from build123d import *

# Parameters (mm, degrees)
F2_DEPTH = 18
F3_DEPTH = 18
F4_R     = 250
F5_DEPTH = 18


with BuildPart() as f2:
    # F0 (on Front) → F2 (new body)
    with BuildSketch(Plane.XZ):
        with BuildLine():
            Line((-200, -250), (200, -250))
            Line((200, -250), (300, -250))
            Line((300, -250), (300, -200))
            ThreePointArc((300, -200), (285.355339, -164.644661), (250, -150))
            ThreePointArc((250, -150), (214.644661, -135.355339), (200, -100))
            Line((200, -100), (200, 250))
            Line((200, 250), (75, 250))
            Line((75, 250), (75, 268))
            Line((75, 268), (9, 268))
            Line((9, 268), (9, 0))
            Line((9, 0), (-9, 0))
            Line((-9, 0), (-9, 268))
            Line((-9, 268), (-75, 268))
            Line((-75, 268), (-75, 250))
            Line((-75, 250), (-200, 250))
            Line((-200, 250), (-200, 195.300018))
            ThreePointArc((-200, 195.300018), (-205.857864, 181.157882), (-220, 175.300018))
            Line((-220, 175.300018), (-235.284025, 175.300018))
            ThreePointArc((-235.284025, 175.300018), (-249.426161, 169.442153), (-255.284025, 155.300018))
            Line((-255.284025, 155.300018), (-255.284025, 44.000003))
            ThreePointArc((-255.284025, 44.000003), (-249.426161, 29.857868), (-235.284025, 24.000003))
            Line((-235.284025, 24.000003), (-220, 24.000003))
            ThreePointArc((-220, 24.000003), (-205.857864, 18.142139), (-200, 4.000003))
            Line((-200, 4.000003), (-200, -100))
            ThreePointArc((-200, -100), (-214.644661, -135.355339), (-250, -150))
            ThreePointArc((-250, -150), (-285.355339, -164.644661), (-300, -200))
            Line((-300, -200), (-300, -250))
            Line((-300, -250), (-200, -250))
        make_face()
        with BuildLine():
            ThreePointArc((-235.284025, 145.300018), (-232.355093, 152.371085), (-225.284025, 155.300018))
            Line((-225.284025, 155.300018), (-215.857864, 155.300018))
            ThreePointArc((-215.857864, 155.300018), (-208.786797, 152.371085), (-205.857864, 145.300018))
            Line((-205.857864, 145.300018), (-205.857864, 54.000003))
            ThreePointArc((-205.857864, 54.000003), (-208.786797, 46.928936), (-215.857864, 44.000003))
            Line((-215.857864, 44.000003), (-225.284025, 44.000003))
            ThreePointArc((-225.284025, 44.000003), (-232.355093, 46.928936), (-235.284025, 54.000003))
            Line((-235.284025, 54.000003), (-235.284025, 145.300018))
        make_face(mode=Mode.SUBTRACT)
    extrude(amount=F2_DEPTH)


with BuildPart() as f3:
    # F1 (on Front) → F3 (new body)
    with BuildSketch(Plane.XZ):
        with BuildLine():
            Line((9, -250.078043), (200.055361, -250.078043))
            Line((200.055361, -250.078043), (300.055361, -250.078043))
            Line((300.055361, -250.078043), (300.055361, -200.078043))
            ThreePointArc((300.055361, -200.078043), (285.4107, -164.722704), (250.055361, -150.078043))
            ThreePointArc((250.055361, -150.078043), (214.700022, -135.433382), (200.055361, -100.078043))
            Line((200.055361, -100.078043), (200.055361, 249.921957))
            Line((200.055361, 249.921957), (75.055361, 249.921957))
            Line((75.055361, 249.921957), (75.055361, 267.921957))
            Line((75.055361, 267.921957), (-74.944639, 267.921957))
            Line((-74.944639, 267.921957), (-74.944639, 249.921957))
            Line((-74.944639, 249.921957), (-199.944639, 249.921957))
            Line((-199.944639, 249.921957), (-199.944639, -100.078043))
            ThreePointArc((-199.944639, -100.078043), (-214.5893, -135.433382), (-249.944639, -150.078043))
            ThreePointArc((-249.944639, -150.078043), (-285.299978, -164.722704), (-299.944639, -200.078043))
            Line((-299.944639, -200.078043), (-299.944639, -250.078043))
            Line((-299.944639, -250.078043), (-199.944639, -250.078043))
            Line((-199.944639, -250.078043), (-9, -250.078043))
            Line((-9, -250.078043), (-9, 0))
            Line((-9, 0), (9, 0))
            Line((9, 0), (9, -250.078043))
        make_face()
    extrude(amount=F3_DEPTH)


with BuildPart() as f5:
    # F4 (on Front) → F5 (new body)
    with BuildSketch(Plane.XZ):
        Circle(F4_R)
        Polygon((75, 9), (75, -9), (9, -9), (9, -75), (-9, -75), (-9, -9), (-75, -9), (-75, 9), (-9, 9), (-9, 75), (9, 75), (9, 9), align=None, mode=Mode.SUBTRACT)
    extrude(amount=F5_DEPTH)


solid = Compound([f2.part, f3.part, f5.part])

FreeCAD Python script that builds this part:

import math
import FreeCAD as App
import Part
import Sketcher
from FreeCAD import Vector

doc = App.newDocument("Part")
body = doc.addObject("PartDesign::Body", "Body")

# Sketch on XZ plane
sketch1 = body.newObject("Sketcher::SketchObject", "Sketch")
sketch1.AttachmentSupport = (doc.getObject("XZ_Plane"), [""])
sketch1.MapMode = "FlatFace"
sketch1.addGeometry(Part.LineSegment(Vector(300, -250, 0), Vector(300, -200, 0)), False)
sketch1.addGeometry(Part.ArcOfCircle(Part.Circle(Vector(250, -200, 0), Vector(0, 0, 1), 50), math.radians(0), math.radians(90)), False)
sketch1.addGeometry(Part.ArcOfCircle(Part.Circle(Vector(250, -100, 0), Vector(0, 0, 1), 50), math.radians(-180), math.radians(-90)), False)
sketch1.addGeometry(Part.LineSegment(Vector(200, -100, 0), Vector(200, 250, 0)), False)
sketch1.addGeometry(Part.LineSegment(Vector(200, 250, 0), Vector(75, 250, 0)), False)
sketch1.addGeometry(Part.LineSegment(Vector(75, 250, 0), Vector(75, 268, 0)), False)
sketch1.addGeometry(Part.LineSegment(Vector(75, 268, 0), Vector(9, 268, 0)), False)
sketch1.addGeometry(Part.LineSegment(Vector(9, 268, 0), Vector(9, 0, 0)), False)
sketch1.addGeometry(Part.LineSegment(Vector(9, 0, 0), Vector(-9, 0, 0)), False)
sketch1.addGeometry(Part.LineSegment(Vector(-9, 0, 0), Vector(-9, 268, 0)), False)
sketch1.addGeometry(Part.LineSegment(Vector(-9, 268, 0), Vector(-75, 268, 0)), False)
sketch1.addGeometry(Part.LineSegment(Vector(-75, 268, 0), Vector(-75, 250, 0)), False)
sketch1.addGeometry(Part.LineSegment(Vector(-75, 250, 0), Vector(-200, 250, 0)), False)
sketch1.addGeometry(Part.LineSegment(Vector(-200, 250, 0), Vector(-200, 195, 0)), False)
sketch1.addGeometry(Part.ArcOfCircle(Part.Circle(Vector(-220, 195, 0), Vector(0, 0, 1), 20), math.radians(-90), math.radians(0)), False)
sketch1.addGeometry(Part.LineSegment(Vector(-220, 175, 0), Vector(-235, 175, 0)), False)
sketch1.addGeometry(Part.ArcOfCircle(Part.Circle(Vector(-235, 155, 0), Vector(0, 0, 1), 20), math.radians(90), math.radians(180)), False)
sketch1.addGeometry(Part.LineSegment(Vector(-255, 155, 0), Vector(-255, 44, 0)), False)
sketch1.addGeometry(Part.ArcOfCircle(Part.Circle(Vector(-235, 44, 0), Vector(0, 0, 1), 20), math.radians(-180), math.radians(-90)), False)
sketch1.addGeometry(Part.LineSegment(Vector(-235, 24, 0), Vector(-220, 24, 0)), False)
sketch1.addGeometry(Part.ArcOfCircle(Part.Circle(Vector(-220, 4, 0), Vector(0, 0, 1), 20), math.radians(0), math.radians(90)), False)
sketch1.addGeometry(Part.LineSegment(Vector(-200, 4, 0), Vector(-200, -100, 0)), False)
sketch1.addGeometry(Part.ArcOfCircle(Part.Circle(Vector(-250, -100, 0), Vector(0, 0, 1), 50), math.radians(-90), math.radians(0)), False)
sketch1.addGeometry(Part.ArcOfCircle(Part.Circle(Vector(-250, -200, 0), Vector(0, 0, 1), 50), math.radians(90), math.radians(180)), False)
sketch1.addGeometry(Part.LineSegment(Vector(-300, -200, 0), Vector(-300, -250, 0)), False)
sketch1.addGeometry(Part.LineSegment(Vector(-300, -250, 0), Vector(300, -250, 0)), False)
sketch1.addGeometry(Part.LineSegment(Vector(-235, 54, 0), Vector(-235, 145, 0)), False)
sketch1.addGeometry(Part.ArcOfCircle(Part.Circle(Vector(-225, 145, 0), Vector(0, 0, 1), 10), math.radians(90), math.radians(180)), False)
sketch1.addGeometry(Part.LineSegment(Vector(-225, 155, 0), Vector(-216, 155, 0)), False)
sketch1.addGeometry(Part.ArcOfCircle(Part.Circle(Vector(-216, 145, 0), Vector(0, 0, 1), 10), math.radians(0), math.radians(90)), False)
sketch1.addGeometry(Part.LineSegment(Vector(-206, 145, 0), Vector(-206, 54, 0)), False)
sketch1.addGeometry(Part.ArcOfCircle(Part.Circle(Vector(-216, 54, 0), Vector(0, 0, 1), 10), math.radians(-90), math.radians(0)), False)
sketch1.addGeometry(Part.LineSegment(Vector(-216, 44, 0), Vector(-225, 44, 0)), False)
sketch1.addGeometry(Part.ArcOfCircle(Part.Circle(Vector(-225, 54, 0), Vector(0, 0, 1), 10), math.radians(-180), math.radians(-90)), False)
sketch1.addConstraint(Sketcher.Constraint("Tangent", 0, 2, 1, 1))
sketch1.addConstraint(Sketcher.Constraint("Tangent", 1, 2, 2, 2))
sketch1.addConstraint(Sketcher.Constraint("Tangent", 2, 1, 3, 1))
sketch1.addConstraint(Sketcher.Constraint("Coincident", 3, 2, 4, 1))
sketch1.addConstraint(Sketcher.Constraint("Coincident", 4, 2, 5, 1))
sketch1.addConstraint(Sketcher.Constraint("Coincident", 5, 2, 6, 1))
sketch1.addConstraint(Sketcher.Constraint("Coincident", 6, 2, 7, 1))
sketch1.addConstraint(Sketcher.Constraint("Coincident", 7, 2, 8, 1))
sketch1.addConstraint(Sketcher.Constraint("Coincident", 8, 2, 9, 1))
sketch1.addConstraint(Sketcher.Constraint("Coincident", 9, 2, 10, 1))
sketch1.addConstraint(Sketcher.Constraint("Coincident", 10, 2, 11, 1))
sketch1.addConstraint(Sketcher.Constraint("Coincident", 11, 2, 12, 1))
sketch1.addConstraint(Sketcher.Constraint("Coincident", 12, 2, 13, 1))
sketch1.addConstraint(Sketcher.Constraint("Tangent", 13, 2, 14, 2))
sketch1.addConstraint(Sketcher.Constraint("Tangent", 14, 1, 15, 1))
sketch1.addConstraint(Sketcher.Constraint("Tangent", 15, 2, 16, 1))
sketch1.addConstraint(Sketcher.Constraint("Tangent", 16, 2, 17, 1))
sketch1.addConstraint(Sketcher.Constraint("Tangent", 17, 2, 18, 1))
sketch1.addConstraint(Sketcher.Constraint("Tangent", 18, 2, 19, 1))
sketch1.addConstraint(Sketcher.Constraint("Tangent", 19, 2, 20, 2))
sketch1.addConstraint(Sketcher.Constraint("Tangent", 20, 1, 21, 1))
sketch1.addConstraint(Sketcher.Constraint("Tangent", 21, 2, 22, 2))
sketch1.addConstraint(Sketcher.Constraint("Tangent", 22, 1, 23, 1))
sketch1.addConstraint(Sketcher.Constraint("Tangent", 23, 2, 24, 1))
sketch1.addConstraint(Sketcher.Constraint("Coincident", 24, 2, 25, 1))
sketch1.addConstraint(Sketcher.Constraint("Coincident", 25, 2, 0, 1))
sketch1.addConstraint(Sketcher.Constraint("Tangent", 26, 2, 27, 2))
sketch1.addConstraint(Sketcher.Constraint("Tangent", 27, 1, 28, 1))
sketch1.addConstraint(Sketcher.Constraint("Tangent", 28, 2, 29, 2))
sketch1.addConstraint(Sketcher.Constraint("Tangent", 29, 1, 30, 1))
sketch1.addConstraint(Sketcher.Constraint("Tangent", 30, 2, 31, 2))
sketch1.addConstraint(Sketcher.Constraint("Tangent", 31, 1, 32, 1))
sketch1.addConstraint(Sketcher.Constraint("Tangent", 32, 2, 33, 2))
sketch1.addConstraint(Sketcher.Constraint("Tangent", 33, 1, 26, 1))
sketch1.addConstraint(Sketcher.Constraint("Vertical", 0))
sketch1.addConstraint(Sketcher.Constraint("Vertical", 3))
sketch1.addConstraint(Sketcher.Constraint("Horizontal", 4))
sketch1.addConstraint(Sketcher.Constraint("Vertical", 5))
sketch1.addConstraint(Sketcher.Constraint("Horizontal", 6))
sketch1.addConstraint(Sketcher.Constraint("Vertical", 7))
sketch1.addConstraint(Sketcher.Constraint("Horizontal", 8))
sketch1.addConstraint(Sketcher.Constraint("Vertical", 9))
sketch1.addConstraint(Sketcher.Constraint("Horizontal", 10))
sketch1.addConstraint(Sketcher.Constraint("Vertical", 11))
sketch1.addConstraint(Sketcher.Constraint("Horizontal", 12))
sketch1.addConstraint(Sketcher.Constraint("Vertical", 13))
sketch1.addConstraint(Sketcher.Constraint("Horizontal", 15))
sketch1.addConstraint(Sketcher.Constraint("Vertical", 17))
sketch1.addConstraint(Sketcher.Constraint("Horizontal", 19))
sketch1.addConstraint(Sketcher.Constraint("Vertical", 21))
sketch1.addConstraint(Sketcher.Constraint("Vertical", 24))
sketch1.addConstraint(Sketcher.Constraint("Horizontal", 25))
sketch1.addConstraint(Sketcher.Constraint("Vertical", 26))
sketch1.addConstraint(Sketcher.Constraint("Horizontal", 28))
sketch1.addConstraint(Sketcher.Constraint("Vertical", 30))
sketch1.addConstraint(Sketcher.Constraint("Horizontal", 32))
sketch1.addConstraint(Sketcher.Constraint("Equal", 1, 2))
sketch1.addConstraint(Sketcher.Constraint("Equal", 14, 16))
sketch1.addConstraint(Sketcher.Constraint("Equal", 16, 18))
sketch1.addConstraint(Sketcher.Constraint("Equal", 18, 20))
sketch1.addConstraint(Sketcher.Constraint("Equal", 2, 22))
sketch1.addConstraint(Sketcher.Constraint("Equal", 22, 23))
sketch1.addConstraint(Sketcher.Constraint("Equal", 27, 29))
sketch1.addConstraint(Sketcher.Constraint("Equal", 29, 31))
sketch1.addConstraint(Sketcher.Constraint("Equal", 31, 33))
sketch1.addConstraint(Sketcher.Constraint("Symmetric", 7, 2, 8, 2, -1, 1))
sketch1.addConstraint(Sketcher.Constraint("Symmetric", 2, 3, 22, 3, -2))
sketch1.addConstraint(Sketcher.Constraint("Symmetric", 5, 2, 10, 2, -2))
sketch1.addConstraint(Sketcher.Constraint("Symmetric", 3, 2, 12, 2, -2))
sketch1.addConstraint(Sketcher.Constraint("Horizontal", 16, 2, 27, 1))
sketch1.addConstraint(Sketcher.Constraint("Horizontal", 17, 2, 31, 1))
sketch1.addConstraint(Sketcher.Constraint("Vertical", 1, 3, 2, 3))
sketch1.addConstraint(Sketcher.Constraint("Vertical", 22, 3, 23, 3))
sketch1.addConstraint(Sketcher.Constraint("Vertical", 18, 2, 26, 2))
sketch1.addConstraint(Sketcher.Constraint("Equal", 8, 5))
sketch1.addConstraint(Sketcher.Constraint("Radius", 1, 50.0))
sketch1.addConstraint(Sketcher.Constraint("Radius", 14, 19.999999))
sketch1.addConstraint(Sketcher.Constraint("Radius", 27, 10.000001))
sketch1.addConstraint(Sketcher.Constraint("DistanceX", 4, 2, 4, 1, 125.0))
sketch1.addConstraint(Sketcher.Constraint("DistanceX", 6, 2, 6, 1, 66.0))
sketch1.addConstraint(Sketcher.Constraint("DistanceX", 8, 2, 8, 1, 18.0))
sketch1.addConstraint(Sketcher.Constraint("DistanceY", 0, 1, 0, 2, 50.0))
sketch1.addConstraint(Sketcher.Constraint("DistanceY", 3, 1, 3, 2, 350.0))
sketch1.addConstraint(Sketcher.Constraint("DistanceY", 7, 2, 7, 1, 268.0))
sketch1.addConstraint(Sketcher.Constraint("DistanceX", 28, 1, 28, 2, 9.426161))
sketch1.addConstraint(Sketcher.Constraint("DistanceX", 15, 2, 15, 1, 15.284025))
sketch1.addConstraint(Sketcher.Constraint("DistanceY", 13, 2, 13, 1, 54.699982))
sketch1.addConstraint(Sketcher.Constraint("DistanceY", 17, 2, 17, 1, 111.300015))
pad1 = body.newObject("PartDesign::Pad", "Pad")
pad1.Profile = sketch1
pad1.Length = 18
body2 = doc.addObject("PartDesign::Body", "Body001")

# Sketch on XZ plane
sketch2 = body2.newObject("Sketcher::SketchObject", "Sketch001")
sketch2.AttachmentSupport = (doc.getObject("XZ_Plane001"), [""])
sketch2.MapMode = "FlatFace"
sketch2.addGeometry(Part.LineSegment(Vector(9, -250, 0), Vector(300, -250, 0)), False)
sketch2.addGeometry(Part.LineSegment(Vector(300, -250, 0), Vector(300, -200, 0)), False)
sketch2.addGeometry(Part.ArcOfCircle(Part.Circle(Vector(250, -200, 0), Vector(0, 0, 1), 50), math.radians(0), math.radians(90)), False)
sketch2.addGeometry(Part.ArcOfCircle(Part.Circle(Vector(250, -100, 0), Vector(0, 0, 1), 50), math.radians(-180), math.radians(-90)), False)
sketch2.addGeometry(Part.LineSegment(Vector(200, -100, 0), Vector(200, 250, 0)), False)
sketch2.addGeometry(Part.LineSegment(Vector(200, 250, 0), Vector(75, 250, 0)), False)
sketch2.addGeometry(Part.LineSegment(Vector(75, 250, 0), Vector(75, 268, 0)), False)
sketch2.addGeometry(Part.LineSegment(Vector(75, 268, 0), Vector(-75, 268, 0)), False)
sketch2.addGeometry(Part.LineSegment(Vector(-75, 268, 0), Vector(-75, 250, 0)), False)
sketch2.addGeometry(Part.LineSegment(Vector(-75, 250, 0), Vector(-200, 250, 0)), False)
sketch2.addGeometry(Part.LineSegment(Vector(-200, 250, 0), Vector(-200, -100, 0)), False)
sketch2.addGeometry(Part.ArcOfCircle(Part.Circle(Vector(-250, -100, 0), Vector(0, 0, 1), 50), math.radians(-90), math.radians(0)), False)
sketch2.addGeometry(Part.ArcOfCircle(Part.Circle(Vector(-250, -200, 0), Vector(0, 0, 1), 50), math.radians(90), math.radians(180)), False)
sketch2.addGeometry(Part.LineSegment(Vector(-300, -200, 0), Vector(-300, -250, 0)), False)
sketch2.addGeometry(Part.LineSegment(Vector(-300, -250, 0), Vector(-9, -250, 0)), False)
sketch2.addGeometry(Part.LineSegment(Vector(-9, -250, 0), Vector(-9, 0, 0)), False)
sketch2.addGeometry(Part.LineSegment(Vector(-9, 0, 0), Vector(9, 0, 0)), False)
sketch2.addGeometry(Part.LineSegment(Vector(9, 0, 0), Vector(9, -250, 0)), False)
sketch2.addConstraint(Sketcher.Constraint("Coincident", 0, 2, 1, 1))
sketch2.addConstraint(Sketcher.Constraint("Tangent", 1, 2, 2, 1))
sketch2.addConstraint(Sketcher.Constraint("Tangent", 2, 2, 3, 2))
sketch2.addConstraint(Sketcher.Constraint("Tangent", 3, 1, 4, 1))
sketch2.addConstraint(Sketcher.Constraint("Coincident", 4, 2, 5, 1))
sketch2.addConstraint(Sketcher.Constraint("Coincident", 5, 2, 6, 1))
sketch2.addConstraint(Sketcher.Constraint("Coincident", 6, 2, 7, 1))
sketch2.addConstraint(Sketcher.Constraint("Coincident", 7, 2, 8, 1))
sketch2.addConstraint(Sketcher.Constraint("Coincident", 8, 2, 9, 1))
sketch2.addConstraint(Sketcher.Constraint("Coincident", 9, 2, 10, 1))
sketch2.addConstraint(Sketcher.Constraint("Tangent", 10, 2, 11, 2))
sketch2.addConstraint(Sketcher.Constraint("Tangent", 11, 1, 12, 1))
sketch2.addConstraint(Sketcher.Constraint("Tangent", 12, 2, 13, 1))
sketch2.addConstraint(Sketcher.Constraint("Coincident", 13, 2, 14, 1))
sketch2.addConstraint(Sketcher.Constraint("Coincident", 14, 2, 15, 1))
sketch2.addConstraint(Sketcher.Constraint("Coincident", 15, 2, 16, 1))
sketch2.addConstraint(Sketcher.Constraint("Coincident", 16, 2, 17, 1))
sketch2.addConstraint(Sketcher.Constraint("Coincident", 17, 2, 0, 1))
sketch2.addConstraint(Sketcher.Constraint("Horizontal", 0))
sketch2.addConstraint(Sketcher.Constraint("Vertical", 1))
sketch2.addConstraint(Sketcher.Constraint("Vertical", 4))
sketch2.addConstraint(Sketcher.Constraint("Horizontal", 5))
sketch2.addConstraint(Sketcher.Constraint("Vertical", 6))
sketch2.addConstraint(Sketcher.Constraint("Horizontal", 7))
sketch2.addConstraint(Sketcher.Constraint("Vertical", 8))
sketch2.addConstraint(Sketcher.Constraint("Horizontal", 9))
sketch2.addConstraint(Sketcher.Constraint("Vertical", 10))
sketch2.addConstraint(Sketcher.Constraint("Vertical", 13))
sketch2.addConstraint(Sketcher.Constraint("Horizontal", 14))
sketch2.addConstraint(Sketcher.Constraint("Vertical", 15))
sketch2.addConstraint(Sketcher.Constraint("Horizontal", 16))
sketch2.addConstraint(Sketcher.Constraint("Vertical", 17))
sketch2.addConstraint(Sketcher.Constraint("Equal", 2, 3))
sketch2.addConstraint(Sketcher.Constraint("Equal", 3, 11))
sketch2.addConstraint(Sketcher.Constraint("Equal", 11, 12))
sketch2.addConstraint(Sketcher.Constraint("Symmetric", 15, 2, 16, 2, -1, 1))
sketch2.addConstraint(Sketcher.Constraint("Horizontal", 3, 3, 11, 3))
sketch2.addConstraint(Sketcher.Constraint("Horizontal", 5, 2, 8, 2))
sketch2.addConstraint(Sketcher.Constraint("Horizontal", 0, 2, 13, 2))
sketch2.addConstraint(Sketcher.Constraint("Vertical", 2, 3, 3, 3))
sketch2.addConstraint(Sketcher.Constraint("Vertical", 11, 3, 12, 3))
sketch2.addConstraint(Sketcher.Constraint("Equal", 5, 9))
sketch2.addConstraint(Sketcher.Constraint("Equal", 16, 6))
sketch2.addConstraint(Sketcher.Constraint("Radius", 2, 50.0))
sketch2.addConstraint(Sketcher.Constraint("DistanceX", 5, 2, 5, 1, 125.0))
sketch2.addConstraint(Sketcher.Constraint("DistanceX", 7, 2, 7, 1, 150.0))
sketch2.addConstraint(Sketcher.Constraint("DistanceX", 16, 1, 16, 2, 18.0))
sketch2.addConstraint(Sketcher.Constraint("DistanceY", 1, 1, 1, 2, 50.0))
sketch2.addConstraint(Sketcher.Constraint("DistanceY", 4, 1, 4, 2, 350.0))
sketch2.addConstraint(Sketcher.Constraint("DistanceX", 0, 1, 0, 2, 291.055361))
sketch2.addConstraint(Sketcher.Constraint("DistanceY", 15, 1, 15, 2, 250.078043))
pad2 = body2.newObject("PartDesign::Pad", "Pad001")
pad2.Profile = sketch2
pad2.Length = 18
body3 = doc.addObject("PartDesign::Body", "Body002")

# Sketch on XZ plane
sketch3 = body3.newObject("Sketcher::SketchObject", "Sketch002")
sketch3.AttachmentSupport = (doc.getObject("XZ_Plane002"), [""])
sketch3.MapMode = "FlatFace"
sketch3.addGeometry(Part.Circle(Vector(0, 0, 0), Vector(0, 0, 1), 250), False)
sketch3.addGeometry(Part.LineSegment(Vector(9, 9, 0), Vector(75, 9, 0)), False)
sketch3.addGeometry(Part.LineSegment(Vector(75, 9, 0), Vector(75, -9, 0)), False)
sketch3.addGeometry(Part.LineSegment(Vector(75, -9, 0), Vector(9, -9, 0)), False)
sketch3.addGeometry(Part.LineSegment(Vector(9, -9, 0), Vector(9, -75, 0)), False)
sketch3.addGeometry(Part.LineSegment(Vector(9, -75, 0), Vector(-9, -75, 0)), False)
sketch3.addGeometry(Part.LineSegment(Vector(-9, -75, 0), Vector(-9, -9, 0)), False)
sketch3.addGeometry(Part.LineSegment(Vector(-9, -9, 0), Vector(-75, -9, 0)), False)
sketch3.addGeometry(Part.LineSegment(Vector(-75, -9, 0), Vector(-75, 9, 0)), False)
sketch3.addGeometry(Part.LineSegment(Vector(-75, 9, 0), Vector(-9, 9, 0)), False)
sketch3.addGeometry(Part.LineSegment(Vector(-9, 9, 0), Vector(-9, 75, 0)), False)
sketch3.addGeometry(Part.LineSegment(Vector(-9, 75, 0), Vector(9, 75, 0)), False)
sketch3.addGeometry(Part.LineSegment(Vector(9, 75, 0), Vector(9, 9, 0)), False)
sketch3.addConstraint(Sketcher.Constraint("Coincident", 1, 2, 2, 1))
sketch3.addConstraint(Sketcher.Constraint("Coincident", 2, 2, 3, 1))
sketch3.addConstraint(Sketcher.Constraint("Coincident", 3, 2, 4, 1))
sketch3.addConstraint(Sketcher.Constraint("Coincident", 4, 2, 5, 1))
sketch3.addConstraint(Sketcher.Constraint("Coincident", 5, 2, 6, 1))
sketch3.addConstraint(Sketcher.Constraint("Coincident", 6, 2, 7, 1))
sketch3.addConstraint(Sketcher.Constraint("Coincident", 7, 2, 8, 1))
sketch3.addConstraint(Sketcher.Constraint("Coincident", 8, 2, 9, 1))
sketch3.addConstraint(Sketcher.Constraint("Coincident", 9, 2, 10, 1))
sketch3.addConstraint(Sketcher.Constraint("Coincident", 10, 2, 11, 1))
sketch3.addConstraint(Sketcher.Constraint("Coincident", 11, 2, 12, 1))
sketch3.addConstraint(Sketcher.Constraint("Coincident", 12, 2, 1, 1))
sketch3.addConstraint(Sketcher.Constraint("Horizontal", 1))
sketch3.addConstraint(Sketcher.Constraint("Vertical", 2))
sketch3.addConstraint(Sketcher.Constraint("Horizontal", 3))
sketch3.addConstraint(Sketcher.Constraint("Vertical", 4))
sketch3.addConstraint(Sketcher.Constraint("Horizontal", 5))
sketch3.addConstraint(Sketcher.Constraint("Vertical", 6))
sketch3.addConstraint(Sketcher.Constraint("Horizontal", 7))
sketch3.addConstraint(Sketcher.Constraint("Vertical", 8))
sketch3.addConstraint(Sketcher.Constraint("Horizontal", 9))
sketch3.addConstraint(Sketcher.Constraint("Vertical", 10))
sketch3.addConstraint(Sketcher.Constraint("Horizontal", 11))
sketch3.addConstraint(Sketcher.Constraint("Vertical", 12))
sketch3.addConstraint(Sketcher.Constraint("Coincident", 0, 3, -1, 1))
sketch3.addConstraint(Sketcher.Constraint("Symmetric", 1, 2, 7, 2, -1, 1))
sketch3.addConstraint(Sketcher.Constraint("Symmetric", 3, 2, 9, 2, -1, 1))
sketch3.addConstraint(Sketcher.Constraint("Symmetric", 5, 2, 11, 2, -1, 1))
sketch3.addConstraint(Sketcher.Constraint("Symmetric", 3, 2, 6, 2, -2))
sketch3.addConstraint(Sketcher.Constraint("Equal", 11, 2))
sketch3.addConstraint(Sketcher.Constraint("Equal", 9, 4))
sketch3.addConstraint(Sketcher.Constraint("Diameter", 0, 500.0))
sketch3.addConstraint(Sketcher.Constraint("DistanceX", 1, 1, 1, 2, 66.0))
sketch3.addConstraint(Sketcher.Constraint("DistanceX", 5, 2, 5, 1, 18.0))
pad3 = body3.newObject("PartDesign::Pad", "Pad002")
pad3.Profile = sketch3
pad3.Length = 18

doc.recompute()
